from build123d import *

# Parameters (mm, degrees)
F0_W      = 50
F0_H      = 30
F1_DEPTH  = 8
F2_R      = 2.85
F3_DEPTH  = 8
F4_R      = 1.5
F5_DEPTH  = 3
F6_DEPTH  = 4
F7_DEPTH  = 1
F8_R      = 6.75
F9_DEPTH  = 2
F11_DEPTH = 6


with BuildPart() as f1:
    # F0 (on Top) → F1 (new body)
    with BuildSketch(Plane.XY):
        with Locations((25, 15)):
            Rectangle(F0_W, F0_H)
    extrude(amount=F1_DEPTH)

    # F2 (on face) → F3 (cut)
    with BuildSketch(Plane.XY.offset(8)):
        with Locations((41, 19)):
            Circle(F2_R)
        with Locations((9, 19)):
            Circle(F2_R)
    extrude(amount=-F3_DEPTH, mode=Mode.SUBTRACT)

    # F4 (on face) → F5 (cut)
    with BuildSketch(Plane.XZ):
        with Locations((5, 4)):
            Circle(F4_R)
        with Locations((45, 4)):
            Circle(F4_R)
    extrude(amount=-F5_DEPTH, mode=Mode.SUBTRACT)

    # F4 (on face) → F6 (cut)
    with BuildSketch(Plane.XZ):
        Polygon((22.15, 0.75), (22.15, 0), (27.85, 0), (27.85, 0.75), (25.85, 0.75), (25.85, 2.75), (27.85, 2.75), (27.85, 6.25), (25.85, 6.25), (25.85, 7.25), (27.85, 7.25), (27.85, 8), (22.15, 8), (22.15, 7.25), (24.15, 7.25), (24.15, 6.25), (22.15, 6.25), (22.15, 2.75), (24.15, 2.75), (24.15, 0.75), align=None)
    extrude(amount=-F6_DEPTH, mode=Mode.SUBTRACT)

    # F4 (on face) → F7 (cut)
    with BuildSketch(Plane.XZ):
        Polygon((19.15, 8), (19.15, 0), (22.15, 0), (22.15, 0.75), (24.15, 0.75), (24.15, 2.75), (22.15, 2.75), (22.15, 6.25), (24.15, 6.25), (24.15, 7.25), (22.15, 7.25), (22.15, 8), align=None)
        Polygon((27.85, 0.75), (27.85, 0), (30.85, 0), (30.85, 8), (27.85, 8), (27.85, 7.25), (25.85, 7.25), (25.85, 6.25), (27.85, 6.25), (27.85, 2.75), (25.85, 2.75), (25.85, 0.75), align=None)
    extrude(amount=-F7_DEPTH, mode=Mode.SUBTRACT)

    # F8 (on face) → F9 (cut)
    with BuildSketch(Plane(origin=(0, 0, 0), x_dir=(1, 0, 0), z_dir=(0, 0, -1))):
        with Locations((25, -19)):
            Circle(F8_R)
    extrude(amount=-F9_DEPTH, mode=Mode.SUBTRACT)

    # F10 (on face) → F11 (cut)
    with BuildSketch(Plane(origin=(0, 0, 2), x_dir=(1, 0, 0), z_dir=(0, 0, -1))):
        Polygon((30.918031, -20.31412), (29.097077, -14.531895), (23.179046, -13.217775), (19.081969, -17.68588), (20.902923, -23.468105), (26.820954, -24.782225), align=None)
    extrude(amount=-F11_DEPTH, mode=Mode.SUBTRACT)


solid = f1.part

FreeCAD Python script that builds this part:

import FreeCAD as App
import Part
import Sketcher

V = App.Vector
Q = App.Units.Quantity

doc = App.newDocument("Part")
body = doc.addObject("PartDesign::Body", "Body")

sketch1 = body.newObject("Sketcher::SketchObject", "Sketch")
sketch1.AttachmentSupport = (doc.getObject("XY_Plane"), [""])
sketch1.MapMode = "FlatFace"
sketch1.addGeometry(Part.LineSegment(V(0, 30, 0), V(0, 0, 0)), False)
sketch1.addGeometry(Part.LineSegment(V(0, 0, 0), V(50, 0, 0)), False)
sketch1.addGeometry(Part.LineSegment(V(50, 0, 0), V(50, 30, 0)), False)
sketch1.addGeometry(Part.LineSegment(V(50, 30, 0), V(0, 30, 0)), False)
sketch1.addConstraint(Sketcher.Constraint("Coincident", 0, 2, 1, 1))
sketch1.addConstraint(Sketcher.Constraint("Coincident", 1, 2, 2, 1))
sketch1.addConstraint(Sketcher.Constraint("Coincident", 2, 2, 3, 1))
sketch1.addConstraint(Sketcher.Constraint("Coincident", 3, 2, 0, 1))
sketch1.addConstraint(Sketcher.Constraint("Vertical", 0))
sketch1.addConstraint(Sketcher.Constraint("Horizontal", 1))
sketch1.addConstraint(Sketcher.Constraint("Vertical", 2))
sketch1.addConstraint(Sketcher.Constraint("Horizontal", 3))
sketch1.addConstraint(Sketcher.Constraint("Coincident", 0, 2, -1, 1))
sketch1.addConstraint(Sketcher.Constraint("DistanceX", 1, 1, 1, 2, Q("50 mm")))
sketch1.addConstraint(Sketcher.Constraint("DistanceY", 0, 2, 0, 1, Q("30 mm")))
pad1 = body.newObject("PartDesign::Pad", "Pad")
pad1.Profile = sketch1
pad1.Length = 8

sketch2 = body.newObject("Sketcher::SketchObject", "Sketch001")
sketch2.AttachmentSupport = (doc.getObject("XY_Plane"), [""])
sketch2.MapMode = "FlatFace"
sketch2.AttachmentOffset = App.Placement(V(0, 0, 8), App.Rotation())
sketch2.addGeometry(Part.Circle(V(41, 19, 0), V(0, 0, 1), 2.9), False)
sketch2.addGeometry(Part.Circle(V(9, 19, 0), V(0, 0, 1), 2.9), False)
sketch2.addConstraint(Sketcher.Constraint("Equal", 0, 1))
sketch2.addConstraint(Sketcher.Constraint("Horizontal", 0, 3, 1, 3))
sketch2.addConstraint(Sketcher.Constraint("Diameter", 0, Q("5.7 mm")))
sketch2.addConstraint(Sketcher.Constraint("DistanceX", -1, 1, 0, 3, Q("41 mm")))
sketch2.addConstraint(Sketcher.Constraint("DistanceY", -1, 1, 0, 3, Q("19 mm")))
sketch2.addConstraint(Sketcher.Constraint("DistanceX", -1, 1, 1, 3, Q("9 mm")))
pocket1 = body.newObject("PartDesign::Pocket", "Pocket")
pocket1.Profile = sketch2
pocket1.Length = 8

sketch3 = body.newObject("Sketcher::SketchObject", "Sketch002")
sketch3.AttachmentSupport = (doc.getObject("XZ_Plane"), [""])
sketch3.MapMode = "FlatFace"
sketch3.addGeometry(Part.Circle(V(5, 4, 0), V(0, 0, 1), 1.5), False)
sketch3.addGeometry(Part.Circle(V(45, 4, 0), V(0, 0, 1), 1.5), False)
sketch3.addConstraint(Sketcher.Constraint("Equal", 0, 1))
sketch3.addConstraint(Sketcher.Constraint("Horizontal", 0, 3, 1, 3))
sketch3.addConstraint(Sketcher.Constraint("Diameter", 0, Q("3 mm")))
sketch3.addConstraint(Sketcher.Constraint("DistanceX", -1, 1, 0, 3, Q("5 mm")))
sketch3.addConstraint(Sketcher.Constraint("DistanceY", -1, 1, 0, 3, Q("4 mm")))
sketch3.addConstraint(Sketcher.Constraint("DistanceX", -1, 1, 1, 3, Q("45 mm")))
pocket2 = body.newObject("PartDesign::Pocket", "Pocket001")
pocket2.Profile = sketch3
pocket2.Length = 3

sketch4 = body.newObject("Sketcher::SketchObject", "Sketch003")
sketch4.AttachmentSupport = (doc.getObject("XZ_Plane"), [""])
sketch4.MapMode = "FlatFace"
sketch4.addGeometry(Part.LineSegment(V(22.1, 0.8, 0), V(22.1, 0, 0)), False)
sketch4.addGeometry(Part.LineSegment(V(22.1, 0, 0), V(27.9, 0, 0)), False)
sketch4.addGeometry(Part.LineSegment(V(27.9, 0, 0), V(27.9, 0.8, 0)), False)
sketch4.addGeometry(Part.LineSegment(V(27.9, 0.8, 0), V(25.9, 0.8, 0)), False)
sketch4.addGeometry(Part.LineSegment(V(25.9, 0.8, 0), V(25.9, 2.8, 0)), False)
sketch4.addGeometry(Part.LineSegment(V(25.9, 2.8, 0), V(27.9, 2.8, 0)), False)
sketch4.addGeometry(Part.LineSegment(V(27.9, 2.8, 0), V(27.9, 6.2, 0)), False)
sketch4.addGeometry(Part.LineSegment(V(27.9, 6.2, 0), V(25.9, 6.2, 0)), False)
sketch4.addGeometry(Part.LineSegment(V(25.9, 6.2, 0), V(25.9, 7.2, 0)), False)
sketch4.addGeometry(Part.LineSegment(V(25.9, 7.2, 0), V(27.9, 7.2, 0)), False)
sketch4.addGeometry(Part.LineSegment(V(27.9, 7.2, 0), V(27.9, 8, 0)), False)
sketch4.addGeometry(Part.LineSegment(V(27.9, 8, 0), V(22.1, 8, 0)), False)
sketch4.addGeometry(Part.LineSegment(V(22.1, 8, 0), V(22.1, 7.2, 0)), False)
sketch4.addGeometry(Part.LineSegment(V(22.1, 7.2, 0), V(24.1, 7.2, 0)), False)
sketch4.addGeometry(Part.LineSegment(V(24.1, 7.2, 0), V(24.1, 6.2, 0)), False)
sketch4.addGeometry(Part.LineSegment(V(24.1, 6.2, 0), V(22.1, 6.2, 0)), False)
sketch4.addGeometry(Part.LineSegment(V(22.1, 6.2, 0), V(22.1, 2.8, 0)), False)
sketch4.addGeometry(Part.LineSegment(V(22.1, 2.8, 0), V(24.1, 2.8, 0)), False)
sketch4.addGeometry(Part.LineSegment(V(24.1, 2.8, 0), V(24.1, 0.8, 0)), False)
sketch4.addGeometry(Part.LineSegment(V(24.1, 0.8, 0), V(22.1, 0.8, 0)), False)
sketch4.addConstraint(Sketcher.Constraint("Coincident", 0, 2, 1, 1))
sketch4.addConstraint(Sketcher.Constraint("Coincident", 1, 2, 2, 1))
sketch4.addConstraint(Sketcher.Constraint("Coincident", 2, 2, 3, 1))
sketch4.addConstraint(Sketcher.Constraint("Coincident", 3, 2, 4, 1))
sketch4.addConstraint(Sketcher.Constraint("Coincident", 4, 2, 5, 1))
sketch4.addConstraint(Sketcher.Constraint("Coincident", 5, 2, 6, 1))
sketch4.addConstraint(Sketcher.Constraint("Coincident", 6, 2, 7, 1))
sketch4.addConstraint(Sketcher.Constraint("Coincident", 7, 2, 8, 1))
sketch4.addConstraint(Sketcher.Constraint("Coincident", 8, 2, 9, 1))
sketch4.addConstraint(Sketcher.Constraint("Coincident", 9, 2, 10, 1))
sketch4.addConstraint(Sketcher.Constraint("Coincident", 10, 2, 11, 1))
sketch4.addConstraint(Sketcher.Constraint("Coincident", 11, 2, 12, 1))
sketch4.addConstraint(Sketcher.Constraint("Coincident", 12, 2, 13, 1))
sketch4.addConstraint(Sketcher.Constraint("Coincident", 13, 2, 14, 1))
sketch4.addConstraint(Sketcher.Constraint("Coincident", 14, 2, 15, 1))
sketch4.addConstraint(Sketcher.Constraint("Coincident", 15, 2, 16, 1))
sketch4.addConstraint(Sketcher.Constraint("Coincident", 16, 2, 17, 1))
sketch4.addConstraint(Sketcher.Constraint("Coincident", 17, 2, 18, 1))
sketch4.addConstraint(Sketcher.Constraint("Coincident", 18, 2, 19, 1))
sketch4.addConstraint(Sketcher.Constraint("Coincident", 19, 2, 0, 1))
sketch4.addConstraint(Sketcher.Constraint("Vertical", 0))
sketch4.addConstraint(Sketcher.Constraint("Horizontal", 1))
sketch4.addConstraint(Sketcher.Constraint("Vertical", 2))
sketch4.addConstraint(Sketcher.Constraint("Horizontal", 3))
sketch4.addConstraint(Sketcher.Constraint("Vertical", 4))
sketch4.addConstraint(Sketcher.Constraint("Horizontal", 5))
sketch4.addConstraint(Sketcher.Constraint("Vertical", 6))
sketch4.addConstraint(Sketcher.Constraint("Horizontal", 7))
sketch4.addConstraint(Sketcher.Constraint("Vertical", 8))
sketch4.addConstraint(Sketcher.Constraint("Horizontal", 9))
sketch4.addConstraint(Sketcher.Constraint("Vertical", 10))
sketch4.addConstraint(Sketcher.Constraint("Horizontal", 11))
sketch4.addConstraint(Sketcher.Constraint("Vertical", 12))
sketch4.addConstraint(Sketcher.Constraint("Horizontal", 13))
sketch4.addConstraint(Sketcher.Constraint("Vertical", 14))
sketch4.addConstraint(Sketcher.Constraint("Horizontal", 15))
sketch4.addConstraint(Sketcher.Constraint("Vertical", 16))
sketch4.addConstraint(Sketcher.Constraint("Horizontal", 17))
sketch4.addConstraint(Sketcher.Constraint("Vertical", 18))
sketch4.addConstraint(Sketcher.Constraint("Horizontal", 19))
sketch4.addConstraint(Sketcher.Constraint("PointOnObject", 0, 2, -1))
sketch4.addConstraint(Sketcher.Constraint("Horizontal", 9, 2, 12, 2))
sketch4.addConstraint(Sketcher.Constraint("Horizontal", 7, 2, 14, 2))
sketch4.addConstraint(Sketcher.Constraint("Horizontal", 5, 2, 16, 2))
sketch4.addConstraint(Sketcher.Constraint("Horizontal", 3, 2, 18, 2))
sketch4.addConstraint(Sketcher.Constraint("Vertical", 2, 2, 5, 2))
sketch4.addConstraint(Sketcher.Constraint("Vertical", 4, 2, 7, 2))
sketch4.addConstraint(Sketcher.Constraint("Vertical", 6, 2, 9, 2))
sketch4.addConstraint(Sketcher.Constraint("Vertical", 0, 2, 11, 2))
sketch4.addConstraint(Sketcher.Constraint("Vertical", 12, 2, 15, 2))
sketch4.addConstraint(Sketcher.Constraint("Vertical", 14, 2, 17, 2))
sketch4.addConstraint(Sketcher.Constraint("Equal", 9, 13))
sketch4.addConstraint(Sketcher.Constraint("Equal", 19, 4))
sketch4.addConstraint(Sketcher.Constraint("Equal", 2, 10))
sketch4.addConstraint(Sketcher.Constraint("DistanceX", 3, 2, 3, 1, Q("2 mm")))
sketch4.addConstraint(Sketcher.Constraint("DistanceY", 8, 1, 8, 2, Q("1 mm")))
sketch4.addConstraint(Sketcher.Constraint("DistanceX", 1, 1, 1, 2, Q("5.7 mm")))
sketch4.addConstraint(Sketcher.Constraint("DistanceY", 6, 1, 6, 2, Q("3.5 mm")))
sketch4.addConstraint(Sketcher.Constraint("DistanceY", -1, 1, 10, 2, Q("8 mm")))
sketch4.addConstraint(Sketcher.Constraint("DistanceX", -1, 1, 0, 2, Q("22.15 mm")))
pocket3 = body.newObject("PartDesign::Pocket", "Pocket002")
pocket3.Profile = sketch4
pocket3.Length = 4

sketch5 = body.newObject("Sketcher::SketchObject", "Sketch004")
sketch5.AttachmentSupport = (doc.getObject("XZ_Plane"), [""])
sketch5.MapMode = "FlatFace"
sketch5.addGeometry(Part.LineSegment(V(19.1, 8, 0), V(19.1, 0, 0)), False)
sketch5.addGeometry(Part.LineSegment(V(19.1, 0, 0), V(22.1, 0, 0)), False)
sketch5.addGeometry(Part.LineSegment(V(22.1, 0, 0), V(22.1, 0.8, 0)), False)
sketch5.addGeometry(Part.LineSegment(V(22.1, 0.8, 0), V(24.1, 0.8, 0)), False)
sketch5.addGeometry(Part.LineSegment(V(24.1, 0.8, 0), V(24.1, 2.8, 0)), False)
sketch5.addGeometry(Part.LineSegment(V(24.1, 2.8, 0), V(22.1, 2.8, 0)), False)
sketch5.addGeometry(Part.LineSegment(V(22.1, 2.8, 0), V(22.1, 6.2, 0)), False)
sketch5.addGeometry(Part.LineSegment(V(22.1, 6.2, 0), V(24.1, 6.2, 0)), False)
sketch5.addGeometry(Part.LineSegment(V(24.1, 6.2, 0), V(24.1, 7.2, 0)), False)
sketch5.addGeometry(Part.LineSegment(V(24.1, 7.2, 0), V(22.1, 7.2, 0)), False)
sketch5.addGeometry(Part.LineSegment(V(22.1, 7.2, 0), V(22.1, 8, 0)), False)
sketch5.addGeometry(Part.LineSegment(V(22.1, 8, 0), V(19.1, 8, 0)), False)
sketch5.addGeometry(Part.LineSegment(V(27.9, 0.8, 0), V(27.9, 0, 0)), False)
sketch5.addGeometry(Part.LineSegment(V(27.9, 0, 0), V(30.9, 0, 0)), False)
sketch5.addGeometry(Part.LineSegment(V(30.9, 0, 0), V(30.9, 8, 0)), False)
sketch5.addGeometry(Part.LineSegment(V(30.9, 8, 0), V(27.9, 8, 0)), False)
sketch5.addGeometry(Part.LineSegment(V(27.9, 8, 0), V(27.9, 7.2, 0)), False)
sketch5.addGeometry(Part.LineSegment(V(27.9, 7.2, 0), V(25.9, 7.2, 0)), False)
sketch5.addGeometry(Part.LineSegment(V(25.9, 7.2, 0), V(25.9, 6.2, 0)), False)
sketch5.addGeometry(Part.LineSegment(V(25.9, 6.2, 0), V(27.9, 6.2, 0)), False)
sketch5.addGeometry(Part.LineSegment(V(27.9, 6.2, 0), V(27.9, 2.8, 0)), False)
sketch5.addGeometry(Part.LineSegment(V(27.9, 2.8, 0), V(25.9, 2.8, 0)), False)
sketch5.addGeometry(Part.LineSegment(V(25.9, 2.8, 0), V(25.9, 0.8, 0)), False)
sketch5.addGeometry(Part.LineSegment(V(25.9, 0.8, 0), V(27.9, 0.8, 0)), False)
sketch5.addConstraint(Sketcher.Constraint("Coincident", 0, 2, 1, 1))
sketch5.addConstraint(Sketcher.Constraint("Coincident", 1, 2, 2, 1))
sketch5.addConstraint(Sketcher.Constraint("Coincident", 2, 2, 3, 1))
sketch5.addConstraint(Sketcher.Constraint("Coincident", 3, 2, 4, 1))
sketch5.addConstraint(Sketcher.Constraint("Coincident", 4, 2, 5, 1))
sketch5.addConstraint(Sketcher.Constraint("Coincident", 5, 2, 6, 1))
sketch5.addConstraint(Sketcher.Constraint("Coincident", 6, 2, 7, 1))
sketch5.addConstraint(Sketcher.Constraint("Coincident", 7, 2, 8, 1))
sketch5.addConstraint(Sketcher.Constraint("Coincident", 8, 2, 9, 1))
sketch5.addConstraint(Sketcher.Constraint("Coincident", 9, 2, 10, 1))
sketch5.addConstraint(Sketcher.Constraint("Coincident", 10, 2, 11, 1))
sketch5.addConstraint(Sketcher.Constraint("Coincident", 11, 2, 0, 1))
sketch5.addConstraint(Sketcher.Constraint("Coincident", 12, 2, 13, 1))
sketch5.addConstraint(Sketcher.Constraint("Coincident", 13, 2, 14, 1))
sketch5.addConstraint(Sketcher.Constraint("Coincident", 14, 2, 15, 1))
sketch5.addConstraint(Sketcher.Constraint("Coincident", 15, 2, 16, 1))
sketch5.addConstraint(Sketcher.Constraint("Coincident", 16, 2, 17, 1))
sketch5.addConstraint(Sketcher.Constraint("Coincident", 17, 2, 18, 1))
sketch5.addConstraint(Sketcher.Constraint("Coincident", 18, 2, 19, 1))
sketch5.addConstraint(Sketcher.Constraint("Coincident", 19, 2, 20, 1))
sketch5.addConstraint(Sketcher.Constraint("Coincident", 20, 2, 21, 1))
sketch5.addConstraint(Sketcher.Constraint("Coincident", 21, 2, 22, 1))
sketch5.addConstraint(Sketcher.Constraint("Coincident", 22, 2, 23, 1))
sketch5.addConstraint(Sketcher.Constraint("Coincident", 23, 2, 12, 1))
sketch5.addConstraint(Sketcher.Constraint("Vertical", 0))
sketch5.addConstraint(Sketcher.Constraint("Horizontal", 1))
sketch5.addConstraint(Sketcher.Constraint("Vertical", 2))
sketch5.addConstraint(Sketcher.Constraint("Horizontal", 3))
sketch5.addConstraint(Sketcher.Constraint("Vertical", 4))
sketch5.addConstraint(Sketcher.Constraint("Horizontal", 5))
sketch5.addConstraint(Sketcher.Constraint("Vertical", 6))
sketch5.addConstraint(Sketcher.Constraint("Horizontal", 7))
sketch5.addConstraint(Sketcher.Constraint("Vertical", 8))
sketch5.addConstraint(Sketcher.Constraint("Horizontal", 9))
sketch5.addConstraint(Sketcher.Constraint("Vertical", 10))
sketch5.addConstraint(Sketcher.Constraint("Horizontal", 11))
sketch5.addConstraint(Sketcher.Constraint("Vertical", 12))
sketch5.addConstraint(Sketcher.Constraint("Horizontal", 13))
sketch5.addConstraint(Sketcher.Constraint("Vertical", 14))
sketch5.addConstraint(Sketcher.Constraint("Horizontal", 15))
sketch5.addConstraint(Sketcher.Constraint("Vertical", 16))
sketch5.addConstraint(Sketcher.Constraint("Horizontal", 17))
sketch5.addConstraint(Sketcher.Constraint("Vertical", 18))
sketch5.addConstraint(Sketcher.Constraint("Horizontal", 19))
sketch5.addConstraint(Sketcher.Constraint("Vertical", 20))
sketch5.addConstraint(Sketcher.Constraint("Horizontal", 21))
sketch5.addConstraint(Sketcher.Constraint("Vertical", 22))
sketch5.addConstraint(Sketcher.Constraint("Horizontal", 23))
sketch5.addConstraint(Sketcher.Constraint("PointOnObject", 0, 2, -1))
sketch5.addConstraint(Sketcher.Constraint("PointOnObject", 12, 2, -1))
sketch5.addConstraint(Sketcher.Constraint("Horizontal", 11, 2, 14, 2))
sketch5.addConstraint(Sketcher.Constraint("Horizontal", 9, 2, 16, 2))
sketch5.addConstraint(Sketcher.Constraint("Horizontal", 7, 2, 18, 2))
sketch5.addConstraint(Sketcher.Constraint("Horizontal", 5, 2, 20, 2))
sketch5.addConstraint(Sketcher.Constraint("Horizontal", 3, 2, 22, 2))
sketch5.addConstraint(Sketcher.Constraint("Vertical", 2, 2, 5, 2))
sketch5.addConstraint(Sketcher.Constraint("Vertical", 4, 2, 7, 2))
sketch5.addConstraint(Sketcher.Constraint("Vertical", 6, 2, 9, 2))
sketch5.addConstraint(Sketcher.Constraint("Vertical", 12, 2, 15, 2))
sketch5.addConstraint(Sketcher.Constraint("Vertical", 16, 2, 19, 2))
sketch5.addConstraint(Sketcher.Constraint("Vertical", 18, 2, 21, 2))
sketch5.addConstraint(Sketcher.Constraint("Equal", 11, 13))
sketch5.addConstraint(Sketcher.Constraint("Equal", 9, 17))
sketch5.addConstraint(Sketcher.Constraint("Equal", 23, 4))
sketch5.addConstraint(Sketcher.Constraint("Equal", 2, 10))
sketch5.addConstraint(Sketcher.Constraint("DistanceX", 1, 1, 1, 2, Q("3 mm")))
sketch5.addConstraint(Sketcher.Constraint("DistanceX", 3, 1, 3, 2, Q("2 mm")))
sketch5.addConstraint(Sketcher.Constraint("DistanceY", 0, 2, 0, 1, Q("8 mm")))
sketch5.addConstraint(Sketcher.Constraint("DistanceY", 8, 1, 8, 2, Q("1 mm")))
sketch5.addConstraint(Sketcher.Constraint("DistanceY", 6, 1, 6, 2, Q("3.5 mm")))
sketch5.addConstraint(Sketcher.Constraint("DistanceX", 3, 2, 12, 2, Q("3.7 mm")))
sketch5.addConstraint(Sketcher.Constraint("DistanceX", -1, 1, 0, 2, Q("19.15 mm")))
pocket4 = body.newObject("PartDesign::Pocket", "Pocket003")
pocket4.Profile = sketch5
pocket4.Length = 1

sketch6 = body.newObject("Sketcher::SketchObject", "Sketch005")
sketch6.AttachmentSupport = (doc.getObject("XY_Plane"), [""])
sketch6.MapMode = "FlatFace"
sketch6.addGeometry(Part.Circle(V(25, 19, 0), V(0, 0, 1), 7), False)
sketch6.addConstraint(Sketcher.Constraint("Diameter", 0, Q("13.5 mm")))
sketch6.addConstraint(Sketcher.Constraint("DistanceX", -1, 1, 0, 3, Q("25 mm")))
sketch6.addConstraint(Sketcher.Constraint("DistanceY", -1, 1, 0, 3, Q("19 mm")))
pocket5 = body.newObject("PartDesign::Pocket", "Pocket004")
pocket5.Profile = sketch6
pocket5.Length = 2
pocket5.Reversed = True

sketch7 = body.newObject("Sketcher::SketchObject", "Sketch006")
sketch7.AttachmentSupport = (doc.getObject("XY_Plane"), [""])
sketch7.MapMode = "FlatFace"
sketch7.AttachmentOffset = App.Placement(V(0, 0, 2), App.Rotation())
sketch7.addGeometry(Part.LineSegment(V(31, 20, 0), V(29, 15, 0)), False)
sketch7.addGeometry(Part.LineSegment(V(29, 15, 0), V(23, 13, 0)), False)
sketch7.addGeometry(Part.LineSegment(V(23, 13, 0), V(19, 18, 0)), False)
sketch7.addGeometry(Part.LineSegment(V(19, 18, 0), V(21, 23, 0)), False)
sketch7.addGeometry(Part.LineSegment(V(21, 23, 0), V(27, 25, 0)), False)
sketch7.addGeometry(Part.LineSegment(V(27, 25, 0), V(31, 20, 0)), False)
sketch7.addConstraint(Sketcher.Constraint("Coincident", 0, 2, 1, 1))
sketch7.addConstraint(Sketcher.Constraint("Coincident", 1, 2, 2, 1))
sketch7.addConstraint(Sketcher.Constraint("Coincident", 2, 2, 3, 1))
sketch7.addConstraint(Sketcher.Constraint("Coincident", 3, 2, 4, 1))
sketch7.addConstraint(Sketcher.Constraint("Coincident", 4, 2, 5, 1))
sketch7.addConstraint(Sketcher.Constraint("Coincident", 5, 2, 0, 1))
sketch7.addConstraint(Sketcher.Constraint("Parallel", 0, 3))
sketch7.addConstraint(Sketcher.Constraint("Parallel", 1, 4))
sketch7.addConstraint(Sketcher.Constraint("Parallel", 2, 5))
sketch7.addConstraint(Sketcher.Constraint("Equal", 0, 1))
sketch7.addConstraint(Sketcher.Constraint("Equal", 1, 2))
sketch7.addConstraint(Sketcher.Constraint("Equal", 2, 3))
sketch7.addConstraint(Sketcher.Constraint("Distance", 1, Q("6.062178 mm")))
sketch7.addConstraint(Sketcher.Constraint("DistanceX", -1, 1, 2, 2, Q("19.081969 mm")))
sketch7.addConstraint(Sketcher.Constraint("DistanceY", -1, 1, 2, 2, Q("17.68588 mm")))
sketch7.addConstraint(Sketcher.Constraint("DistanceX", -1, 1, 5, 2, Q("30.918031 mm")))
sketch7.addConstraint(Sketcher.Constraint("DistanceY", -1, 1, 5, 2, Q("20.31412 mm")))
sketch7.addConstraint(Sketcher.Constraint("DistanceX", 1, 2, 0, 2, Q("5.918031 mm")))
pocket6 = body.newObject("PartDesign::Pocket", "Pocket005")
pocket6.Profile = sketch7
pocket6.Length = 6
pocket6.Reversed = True

doc.recompute()
